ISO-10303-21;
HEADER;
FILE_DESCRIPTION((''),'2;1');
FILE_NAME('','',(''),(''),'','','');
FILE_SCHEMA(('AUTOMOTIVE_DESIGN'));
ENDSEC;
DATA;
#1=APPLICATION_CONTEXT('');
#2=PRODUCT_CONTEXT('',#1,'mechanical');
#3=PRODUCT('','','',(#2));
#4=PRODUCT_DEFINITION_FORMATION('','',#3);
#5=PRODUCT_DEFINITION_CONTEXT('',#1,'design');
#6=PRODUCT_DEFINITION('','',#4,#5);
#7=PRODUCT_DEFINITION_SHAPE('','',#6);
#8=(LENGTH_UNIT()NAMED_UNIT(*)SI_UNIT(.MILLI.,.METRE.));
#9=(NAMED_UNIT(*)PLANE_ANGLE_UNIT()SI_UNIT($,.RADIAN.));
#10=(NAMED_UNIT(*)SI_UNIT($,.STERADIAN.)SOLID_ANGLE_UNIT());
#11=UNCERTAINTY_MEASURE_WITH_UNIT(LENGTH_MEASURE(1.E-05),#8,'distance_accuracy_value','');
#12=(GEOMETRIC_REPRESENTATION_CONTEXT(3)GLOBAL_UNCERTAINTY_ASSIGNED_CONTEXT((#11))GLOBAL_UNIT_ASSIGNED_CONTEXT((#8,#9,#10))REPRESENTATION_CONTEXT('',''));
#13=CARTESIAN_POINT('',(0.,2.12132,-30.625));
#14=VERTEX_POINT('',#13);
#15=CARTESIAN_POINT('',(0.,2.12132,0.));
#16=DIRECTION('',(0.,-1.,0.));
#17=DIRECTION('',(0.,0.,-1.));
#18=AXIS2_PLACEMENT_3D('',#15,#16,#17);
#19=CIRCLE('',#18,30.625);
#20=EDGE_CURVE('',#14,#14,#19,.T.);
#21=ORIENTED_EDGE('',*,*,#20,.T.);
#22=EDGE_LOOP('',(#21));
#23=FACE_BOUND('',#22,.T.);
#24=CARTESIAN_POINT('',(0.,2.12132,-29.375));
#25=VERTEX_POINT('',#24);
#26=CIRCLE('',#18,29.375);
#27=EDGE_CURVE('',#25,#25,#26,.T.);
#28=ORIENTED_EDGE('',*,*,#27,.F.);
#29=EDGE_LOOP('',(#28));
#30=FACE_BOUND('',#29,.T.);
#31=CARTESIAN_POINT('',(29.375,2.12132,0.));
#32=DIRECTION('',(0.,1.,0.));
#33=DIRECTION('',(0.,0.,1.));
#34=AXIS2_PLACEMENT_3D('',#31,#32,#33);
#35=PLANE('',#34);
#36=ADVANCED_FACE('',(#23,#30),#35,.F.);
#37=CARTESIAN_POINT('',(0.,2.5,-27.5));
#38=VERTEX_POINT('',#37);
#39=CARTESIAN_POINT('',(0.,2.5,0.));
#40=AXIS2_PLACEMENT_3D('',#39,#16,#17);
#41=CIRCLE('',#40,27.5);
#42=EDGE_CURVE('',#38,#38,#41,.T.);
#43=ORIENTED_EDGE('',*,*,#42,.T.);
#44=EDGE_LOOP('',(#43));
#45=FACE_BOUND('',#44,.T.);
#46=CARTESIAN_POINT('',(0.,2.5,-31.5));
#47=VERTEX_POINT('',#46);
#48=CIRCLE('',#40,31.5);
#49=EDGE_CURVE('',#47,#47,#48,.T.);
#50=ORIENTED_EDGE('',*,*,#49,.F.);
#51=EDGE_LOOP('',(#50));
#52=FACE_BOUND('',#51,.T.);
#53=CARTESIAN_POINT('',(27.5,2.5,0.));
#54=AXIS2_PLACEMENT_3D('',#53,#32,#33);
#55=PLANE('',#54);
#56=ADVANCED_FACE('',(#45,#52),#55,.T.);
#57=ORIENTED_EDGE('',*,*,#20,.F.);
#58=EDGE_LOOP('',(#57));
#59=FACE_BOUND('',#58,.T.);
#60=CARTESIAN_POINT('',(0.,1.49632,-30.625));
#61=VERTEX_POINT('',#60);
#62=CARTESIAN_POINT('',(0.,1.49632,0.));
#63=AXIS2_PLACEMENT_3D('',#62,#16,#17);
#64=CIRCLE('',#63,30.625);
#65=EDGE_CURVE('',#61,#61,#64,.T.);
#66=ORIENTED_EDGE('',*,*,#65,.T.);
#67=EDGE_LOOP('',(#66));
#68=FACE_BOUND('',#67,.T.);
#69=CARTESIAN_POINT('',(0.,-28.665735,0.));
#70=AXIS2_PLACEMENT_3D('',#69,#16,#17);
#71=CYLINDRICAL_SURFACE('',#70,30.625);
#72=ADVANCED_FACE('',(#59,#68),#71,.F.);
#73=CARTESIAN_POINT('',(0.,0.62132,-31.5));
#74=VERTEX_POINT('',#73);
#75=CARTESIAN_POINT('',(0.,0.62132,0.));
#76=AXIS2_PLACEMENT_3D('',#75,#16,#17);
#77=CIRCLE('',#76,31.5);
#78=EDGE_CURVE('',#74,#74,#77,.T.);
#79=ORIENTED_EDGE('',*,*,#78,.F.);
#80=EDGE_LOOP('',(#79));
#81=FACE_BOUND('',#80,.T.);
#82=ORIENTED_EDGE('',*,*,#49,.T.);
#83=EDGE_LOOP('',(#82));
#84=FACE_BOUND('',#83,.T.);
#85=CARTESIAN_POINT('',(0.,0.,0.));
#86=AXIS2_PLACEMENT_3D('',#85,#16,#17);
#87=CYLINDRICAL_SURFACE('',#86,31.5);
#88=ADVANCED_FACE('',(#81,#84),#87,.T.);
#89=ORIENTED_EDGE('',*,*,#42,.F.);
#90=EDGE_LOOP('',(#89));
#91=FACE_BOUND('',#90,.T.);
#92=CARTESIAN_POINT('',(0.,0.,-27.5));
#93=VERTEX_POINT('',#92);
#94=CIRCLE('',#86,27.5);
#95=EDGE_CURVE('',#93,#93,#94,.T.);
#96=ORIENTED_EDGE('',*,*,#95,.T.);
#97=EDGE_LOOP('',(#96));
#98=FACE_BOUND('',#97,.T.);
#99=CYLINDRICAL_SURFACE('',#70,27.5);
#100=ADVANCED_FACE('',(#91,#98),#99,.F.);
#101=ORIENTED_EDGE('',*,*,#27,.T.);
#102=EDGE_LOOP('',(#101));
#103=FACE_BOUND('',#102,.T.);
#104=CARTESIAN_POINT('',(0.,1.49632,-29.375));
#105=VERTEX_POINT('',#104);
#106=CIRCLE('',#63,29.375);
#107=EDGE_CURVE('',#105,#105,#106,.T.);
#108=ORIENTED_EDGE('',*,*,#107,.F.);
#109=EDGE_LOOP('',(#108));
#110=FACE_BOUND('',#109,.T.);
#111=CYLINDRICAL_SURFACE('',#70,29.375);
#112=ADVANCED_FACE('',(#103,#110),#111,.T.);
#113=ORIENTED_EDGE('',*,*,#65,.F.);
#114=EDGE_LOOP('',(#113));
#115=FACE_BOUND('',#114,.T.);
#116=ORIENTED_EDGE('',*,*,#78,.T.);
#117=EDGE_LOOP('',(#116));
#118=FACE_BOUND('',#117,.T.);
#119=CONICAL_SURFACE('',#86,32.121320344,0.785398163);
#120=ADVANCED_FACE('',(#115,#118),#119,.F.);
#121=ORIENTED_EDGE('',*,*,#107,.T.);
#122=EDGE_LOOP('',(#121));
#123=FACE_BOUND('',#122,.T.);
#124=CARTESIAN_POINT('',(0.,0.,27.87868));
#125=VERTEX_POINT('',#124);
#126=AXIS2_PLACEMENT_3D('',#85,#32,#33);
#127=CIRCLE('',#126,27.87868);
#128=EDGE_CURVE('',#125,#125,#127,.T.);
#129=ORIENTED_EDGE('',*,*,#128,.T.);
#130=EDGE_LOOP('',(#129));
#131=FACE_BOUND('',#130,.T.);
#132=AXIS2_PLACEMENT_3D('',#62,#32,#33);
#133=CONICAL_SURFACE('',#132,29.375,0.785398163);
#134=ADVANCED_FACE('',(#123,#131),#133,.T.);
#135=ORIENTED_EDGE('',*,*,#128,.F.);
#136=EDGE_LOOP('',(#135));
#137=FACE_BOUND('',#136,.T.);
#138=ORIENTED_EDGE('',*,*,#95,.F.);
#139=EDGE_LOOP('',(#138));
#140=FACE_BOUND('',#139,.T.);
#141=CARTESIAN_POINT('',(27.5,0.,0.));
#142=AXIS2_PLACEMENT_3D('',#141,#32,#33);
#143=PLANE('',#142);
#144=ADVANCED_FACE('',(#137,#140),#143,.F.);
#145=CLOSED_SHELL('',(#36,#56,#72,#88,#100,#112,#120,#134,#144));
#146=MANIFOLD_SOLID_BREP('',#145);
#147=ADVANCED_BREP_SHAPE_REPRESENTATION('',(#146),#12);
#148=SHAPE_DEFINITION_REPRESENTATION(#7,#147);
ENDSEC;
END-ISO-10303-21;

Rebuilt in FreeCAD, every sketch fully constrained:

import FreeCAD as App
import Part
import Sketcher

V = App.Vector
Q = App.Units.Quantity

doc = App.newDocument("Part")
body = doc.addObject("PartDesign::Body", "Body")

# Sketch on XY plane
sketch1 = body.newObject("Sketcher::SketchObject", "Sketch")
sketch1.AttachmentSupport = (doc.getObject("XY_Plane"), [""])
sketch1.MapMode = "FlatFace"
sketch1.addGeometry([
    Part.LineSegment(V(27.5, 2.5, 0), V(27.5, -2.5, 0)),  # 0
    Part.LineSegment(V(27.5, -2.5, 0), V(32.5, -2.5, 0)),  # 1
    Part.LineSegment(V(32.5, -2.5, 0), V(32.5, 2.5, 0)),  # 2
    Part.LineSegment(V(32.5, 2.5, 0), V(27.5, 2.5, 0)),  # 3
    Part.LineSegment(V(29.4, -2.1, 0), V(29.4, -1.5, 0)),  # 4
    Part.LineSegment(V(29.4, -1.5, 0), V(27.9, 0, 0)),  # 5
    Part.LineSegment(V(27.9, 0, 0), V(29.4, 1.5, 0)),  # 6
    Part.LineSegment(V(29.4, 1.5, 0), V(29.4, 2.1, 0)),  # 7
    Part.LineSegment(V(29.4, 2.1, 0), V(30.6, 2.1, 0)),  # 8
    Part.LineSegment(V(30.6, 2.1, 0), V(30.6, 1.5, 0)),  # 9
    Part.LineSegment(V(30.6, 1.5, 0), V(32.1, 0, 0)),  # 10
    Part.LineSegment(V(32.1, 0, 0), V(30.6, -1.5, 0)),  # 11
    Part.LineSegment(V(30.6, -1.5, 0), V(30.6, -2.1, 0)),  # 12
    Part.LineSegment(V(30.6, -2.1, 0), V(29.4, -2.1, 0)),  # 13
], False)
sketch1.addConstraint([
    Sketcher.Constraint("Coincident", 0, 2, 1, 1),
    Sketcher.Constraint("Coincident", 1, 2, 2, 1),
    Sketcher.Constraint("Coincident", 2, 2, 3, 1),
    Sketcher.Constraint("Coincident", 3, 2, 0, 1),
    Sketcher.Constraint("Coincident", 4, 2, 5, 1),
    Sketcher.Constraint("Coincident", 5, 2, 6, 1),
    Sketcher.Constraint("Coincident", 6, 2, 7, 1),
    Sketcher.Constraint("Coincident", 7, 2, 8, 1),
    Sketcher.Constraint("Coincident", 8, 2, 9, 1),
    Sketcher.Constraint("Coincident", 9, 2, 10, 1),
    Sketcher.Constraint("Coincident", 10, 2, 11, 1),
    Sketcher.Constraint("Coincident", 11, 2, 12, 1),
    Sketcher.Constraint("Coincident", 12, 2, 13, 1),
    Sketcher.Constraint("Coincident", 13, 2, 4, 1),
    Sketcher.Constraint("Vertical", 0),
    Sketcher.Constraint("Horizontal", 1),
    Sketcher.Constraint("Vertical", 2),
    Sketcher.Constraint("Horizontal", 3),
    Sketcher.Constraint("Vertical", 4),
    Sketcher.Constraint("Vertical", 7),
    Sketcher.Constraint("Horizontal", 8),
    Sketcher.Constraint("Vertical", 9),
    Sketcher.Constraint("Vertical", 12),
    Sketcher.Constraint("Horizontal", 13),
    Sketcher.Constraint("Symmetric", 4, 2, 6, 2, -1),
    Sketcher.Constraint("Symmetric", 9, 2, 11, 2, -1),
    Sketcher.Constraint("PointOnObject", 5, 2, -1),
    Sketcher.Constraint("PointOnObject", 10, 2, -1),
    Sketcher.Constraint("Perpendicular", 5, 6),
    Sketcher.Constraint("Perpendicular", 6, 10),
    Sketcher.Constraint("Horizontal", 6, 2, 9, 2),
    Sketcher.Constraint("Equal", 3, 0),
    Sketcher.Constraint("Equal", 4, 7),
    Sketcher.Constraint("DistanceX", 1, 1, 1, 2, Q("5 mm")),
    Sketcher.Constraint("DistanceX", 8, 1, 8, 2, Q("1.25 mm")),
    Sketcher.Constraint("DistanceX", -1, 1, 0, 2, Q("27.5 mm")),
    Sketcher.Constraint("DistanceY", 0, 2, -1, 1, Q("2.5 mm")),
    Sketcher.Constraint("DistanceY", 4, 1, 4, 2, Q("0.625 mm")),
    Sketcher.Constraint("DistanceX", -1, 1, 4, 2, Q("29.375 mm")),
    Sketcher.Constraint("DistanceY", 4, 2, -1, 1, Q("1.49632 mm")),
])
revolution = body.newObject("PartDesign::Revolution", "Revolution")
revolution.Profile = sketch1
revolution.ReferenceAxis = (sketch1, ["V_Axis"])
revolution.Angle = 360

# Sketch on XY plane
sketch2 = body.newObject("Sketcher::SketchObject", "Sketch001")
sketch2.AttachmentSupport = (doc.getObject("XY_Plane"), [""])
sketch2.MapMode = "FlatFace"
sketch2.addGeometry([
    Part.LineSegment(V(31.5, 0, 0), V(27.5, 0, 0)),  # 0
    Part.LineSegment(V(27.5, 0, 0), V(27.5, -2.5, 0)),  # 1
    Part.LineSegment(V(27.5, -2.5, 0), V(32.5, -2.5, 0)),  # 2
    Part.LineSegment(V(32.5, -2.5, 0), V(32.5, 2.5, 0)),  # 3
    Part.LineSegment(V(32.5, 2.5, 0), V(31.5, 2.5, 0)),  # 4
    Part.LineSegment(V(31.5, 2.5, 0), V(31.5, 0, 0)),  # 5
], False)
sketch2.addConstraint([
    Sketcher.Constraint("Coincident", 0, 2, 1, 1),
    Sketcher.Constraint("Coincident", 1, 2, 2, 1),
    Sketcher.Constraint("Coincident", 2, 2, 3, 1),
    Sketcher.Constraint("Coincident", 3, 2, 4, 1),
    Sketcher.Constraint("Coincident", 4, 2, 5, 1),
    Sketcher.Constraint("Coincident", 5, 2, 0, 1),
    Sketcher.Constraint("Horizontal", 0),
    Sketcher.Constraint("Vertical", 1),
    Sketcher.Constraint("Horizontal", 2),
    Sketcher.Constraint("Vertical", 3),
    Sketcher.Constraint("Horizontal", 4),
    Sketcher.Constraint("Vertical", 5),
    Sketcher.Constraint("PointOnObject", 0, 2, -1),
    Sketcher.Constraint("Equal", 2, 3),
    Sketcher.Constraint("Equal", 1, 5),
    Sketcher.Constraint("DistanceX", 0, 2, 0, 1, Q("4 mm")),
    Sketcher.Constraint("DistanceX", 2, 1, 2, 2, Q("5 mm")),
    Sketcher.Constraint("DistanceX", -1, 1, 0, 2, Q("27.5 mm")),
])
groove = body.newObject("PartDesign::Groove", "Groove")
groove.Profile = sketch2
groove.ReferenceAxis = (sketch2, ["V_Axis"])
groove.Angle = 360

doc.recompute()
